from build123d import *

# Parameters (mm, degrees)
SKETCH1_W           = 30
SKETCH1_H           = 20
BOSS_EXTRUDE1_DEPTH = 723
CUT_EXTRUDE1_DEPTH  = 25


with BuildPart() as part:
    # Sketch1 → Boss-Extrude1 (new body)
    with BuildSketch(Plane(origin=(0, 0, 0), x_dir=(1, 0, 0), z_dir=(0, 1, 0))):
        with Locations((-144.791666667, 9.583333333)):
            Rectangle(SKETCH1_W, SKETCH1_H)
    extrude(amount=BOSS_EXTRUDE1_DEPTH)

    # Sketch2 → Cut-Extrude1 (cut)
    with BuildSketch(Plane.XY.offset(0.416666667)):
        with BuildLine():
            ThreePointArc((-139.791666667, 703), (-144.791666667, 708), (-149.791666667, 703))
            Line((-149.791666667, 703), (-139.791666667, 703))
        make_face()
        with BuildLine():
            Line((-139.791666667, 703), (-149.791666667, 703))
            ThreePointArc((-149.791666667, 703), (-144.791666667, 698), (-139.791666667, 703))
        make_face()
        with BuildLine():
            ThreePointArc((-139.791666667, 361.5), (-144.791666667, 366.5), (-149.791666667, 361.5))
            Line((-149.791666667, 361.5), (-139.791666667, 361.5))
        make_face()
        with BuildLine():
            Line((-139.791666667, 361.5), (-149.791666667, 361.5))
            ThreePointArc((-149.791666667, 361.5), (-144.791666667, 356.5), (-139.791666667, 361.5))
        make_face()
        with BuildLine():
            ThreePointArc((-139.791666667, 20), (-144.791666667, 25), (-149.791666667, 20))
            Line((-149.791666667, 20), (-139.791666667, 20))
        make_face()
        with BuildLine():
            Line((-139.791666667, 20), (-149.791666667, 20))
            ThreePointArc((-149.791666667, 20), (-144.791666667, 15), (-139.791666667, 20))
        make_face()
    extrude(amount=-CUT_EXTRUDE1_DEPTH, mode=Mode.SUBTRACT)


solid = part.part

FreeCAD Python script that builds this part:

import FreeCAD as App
import Part
import Sketcher
from FreeCAD import Vector
Q = App.Units.Quantity


def add_polygon(sketch, points):
    """Adds a closed chain of lines whose ends are joined by coincident constraints."""
    first, n = sketch.GeometryCount, len(points)
    for a, b in zip(points, points[1:] + points[:1]):
        sketch.addGeometry(Part.LineSegment(App.Vector(*a, 0), App.Vector(*b, 0)), False)
    for i in range(n):
        sketch.addConstraint(Sketcher.Constraint("Coincident", first + i, 2, first + (i + 1) % n, 1))

doc = App.newDocument("Part")
body = doc.addObject("PartDesign::Body", "Body")

# Sketch on XZ plane
sketch1 = body.newObject("Sketcher::SketchObject", "Sketch")
sketch1.AttachmentSupport = (doc.getObject("XZ_Plane"), [""])
sketch1.MapMode = "FlatFace"
add_polygon(sketch1, [(-159.791667, -19.583333), (-159.791667, 0.416667), (-129.791667, 0.416667), (-129.791667, -19.583333)])  # lines 0-3
sketch1.addConstraint([
    Sketcher.Constraint("Vertical", 0),
    Sketcher.Constraint("Horizontal", 1),
    Sketcher.Constraint("Vertical", 2),
    Sketcher.Constraint("Horizontal", 3),
    Sketcher.Constraint("DistanceX", 1, 1, 1, 2, Q("30 mm")),
    Sketcher.Constraint("DistanceY", 0, 1, 0, 2, Q("20 mm")),
    Sketcher.Constraint("DistanceX", 0, 2, -1, 1, Q("159.791667 mm")),
    Sketcher.Constraint("DistanceY", -1, 1, 0, 2, Q("0.416667 mm")),
])
pad1 = body.newObject("PartDesign::Pad", "Pad")
pad1.Profile = sketch1
pad1.Length = 723
pad1.Reversed = True

# Sketch on XY plane
sketch2 = body.newObject("Sketcher::SketchObject", "Sketch001")
sketch2.AttachmentSupport = (doc.getObject("XY_Plane"), [""])
sketch2.MapMode = "FlatFace"
sketch2.AttachmentOffset = App.Placement(Vector(0, 0, 0.416667), App.Rotation())
sketch2.addGeometry([
    Part.Circle(Vector(-144.791667, 703, 0), Vector(0, 0, 1), 5),
    Part.Circle(Vector(-144.791667, 361.5, 0), Vector(0, 0, 1), 5),
    Part.Circle(Vector(-144.791667, 20, 0), Vector(0, 0, 1), 5),
], False)
sketch2.addConstraint([
    Sketcher.Constraint("Equal", 0, 1),
    Sketcher.Constraint("Equal", 1, 2),
    Sketcher.Constraint("Vertical", 0, 3, 1, 3),
    Sketcher.Constraint("Vertical", 1, 3, 2, 3),
    Sketcher.Constraint("Diameter", 0, Q("10 mm")),
    Sketcher.Constraint("DistanceY", -1, 1, 0, 3, Q("703 mm")),
    Sketcher.Constraint("DistanceY", -1, 1, 2, 3, Q("20 mm")),
    Sketcher.Constraint("DistanceY", -1, 1, 1, 3, Q("361.5 mm")),
    Sketcher.Constraint("DistanceX", 0, 3, -1, 1, Q("144.791667 mm")),
])
pocket1 = body.newObject("PartDesign::Pocket", "Pocket")
pocket1.Profile = sketch2
pocket1.Length = 25

doc.recompute()
